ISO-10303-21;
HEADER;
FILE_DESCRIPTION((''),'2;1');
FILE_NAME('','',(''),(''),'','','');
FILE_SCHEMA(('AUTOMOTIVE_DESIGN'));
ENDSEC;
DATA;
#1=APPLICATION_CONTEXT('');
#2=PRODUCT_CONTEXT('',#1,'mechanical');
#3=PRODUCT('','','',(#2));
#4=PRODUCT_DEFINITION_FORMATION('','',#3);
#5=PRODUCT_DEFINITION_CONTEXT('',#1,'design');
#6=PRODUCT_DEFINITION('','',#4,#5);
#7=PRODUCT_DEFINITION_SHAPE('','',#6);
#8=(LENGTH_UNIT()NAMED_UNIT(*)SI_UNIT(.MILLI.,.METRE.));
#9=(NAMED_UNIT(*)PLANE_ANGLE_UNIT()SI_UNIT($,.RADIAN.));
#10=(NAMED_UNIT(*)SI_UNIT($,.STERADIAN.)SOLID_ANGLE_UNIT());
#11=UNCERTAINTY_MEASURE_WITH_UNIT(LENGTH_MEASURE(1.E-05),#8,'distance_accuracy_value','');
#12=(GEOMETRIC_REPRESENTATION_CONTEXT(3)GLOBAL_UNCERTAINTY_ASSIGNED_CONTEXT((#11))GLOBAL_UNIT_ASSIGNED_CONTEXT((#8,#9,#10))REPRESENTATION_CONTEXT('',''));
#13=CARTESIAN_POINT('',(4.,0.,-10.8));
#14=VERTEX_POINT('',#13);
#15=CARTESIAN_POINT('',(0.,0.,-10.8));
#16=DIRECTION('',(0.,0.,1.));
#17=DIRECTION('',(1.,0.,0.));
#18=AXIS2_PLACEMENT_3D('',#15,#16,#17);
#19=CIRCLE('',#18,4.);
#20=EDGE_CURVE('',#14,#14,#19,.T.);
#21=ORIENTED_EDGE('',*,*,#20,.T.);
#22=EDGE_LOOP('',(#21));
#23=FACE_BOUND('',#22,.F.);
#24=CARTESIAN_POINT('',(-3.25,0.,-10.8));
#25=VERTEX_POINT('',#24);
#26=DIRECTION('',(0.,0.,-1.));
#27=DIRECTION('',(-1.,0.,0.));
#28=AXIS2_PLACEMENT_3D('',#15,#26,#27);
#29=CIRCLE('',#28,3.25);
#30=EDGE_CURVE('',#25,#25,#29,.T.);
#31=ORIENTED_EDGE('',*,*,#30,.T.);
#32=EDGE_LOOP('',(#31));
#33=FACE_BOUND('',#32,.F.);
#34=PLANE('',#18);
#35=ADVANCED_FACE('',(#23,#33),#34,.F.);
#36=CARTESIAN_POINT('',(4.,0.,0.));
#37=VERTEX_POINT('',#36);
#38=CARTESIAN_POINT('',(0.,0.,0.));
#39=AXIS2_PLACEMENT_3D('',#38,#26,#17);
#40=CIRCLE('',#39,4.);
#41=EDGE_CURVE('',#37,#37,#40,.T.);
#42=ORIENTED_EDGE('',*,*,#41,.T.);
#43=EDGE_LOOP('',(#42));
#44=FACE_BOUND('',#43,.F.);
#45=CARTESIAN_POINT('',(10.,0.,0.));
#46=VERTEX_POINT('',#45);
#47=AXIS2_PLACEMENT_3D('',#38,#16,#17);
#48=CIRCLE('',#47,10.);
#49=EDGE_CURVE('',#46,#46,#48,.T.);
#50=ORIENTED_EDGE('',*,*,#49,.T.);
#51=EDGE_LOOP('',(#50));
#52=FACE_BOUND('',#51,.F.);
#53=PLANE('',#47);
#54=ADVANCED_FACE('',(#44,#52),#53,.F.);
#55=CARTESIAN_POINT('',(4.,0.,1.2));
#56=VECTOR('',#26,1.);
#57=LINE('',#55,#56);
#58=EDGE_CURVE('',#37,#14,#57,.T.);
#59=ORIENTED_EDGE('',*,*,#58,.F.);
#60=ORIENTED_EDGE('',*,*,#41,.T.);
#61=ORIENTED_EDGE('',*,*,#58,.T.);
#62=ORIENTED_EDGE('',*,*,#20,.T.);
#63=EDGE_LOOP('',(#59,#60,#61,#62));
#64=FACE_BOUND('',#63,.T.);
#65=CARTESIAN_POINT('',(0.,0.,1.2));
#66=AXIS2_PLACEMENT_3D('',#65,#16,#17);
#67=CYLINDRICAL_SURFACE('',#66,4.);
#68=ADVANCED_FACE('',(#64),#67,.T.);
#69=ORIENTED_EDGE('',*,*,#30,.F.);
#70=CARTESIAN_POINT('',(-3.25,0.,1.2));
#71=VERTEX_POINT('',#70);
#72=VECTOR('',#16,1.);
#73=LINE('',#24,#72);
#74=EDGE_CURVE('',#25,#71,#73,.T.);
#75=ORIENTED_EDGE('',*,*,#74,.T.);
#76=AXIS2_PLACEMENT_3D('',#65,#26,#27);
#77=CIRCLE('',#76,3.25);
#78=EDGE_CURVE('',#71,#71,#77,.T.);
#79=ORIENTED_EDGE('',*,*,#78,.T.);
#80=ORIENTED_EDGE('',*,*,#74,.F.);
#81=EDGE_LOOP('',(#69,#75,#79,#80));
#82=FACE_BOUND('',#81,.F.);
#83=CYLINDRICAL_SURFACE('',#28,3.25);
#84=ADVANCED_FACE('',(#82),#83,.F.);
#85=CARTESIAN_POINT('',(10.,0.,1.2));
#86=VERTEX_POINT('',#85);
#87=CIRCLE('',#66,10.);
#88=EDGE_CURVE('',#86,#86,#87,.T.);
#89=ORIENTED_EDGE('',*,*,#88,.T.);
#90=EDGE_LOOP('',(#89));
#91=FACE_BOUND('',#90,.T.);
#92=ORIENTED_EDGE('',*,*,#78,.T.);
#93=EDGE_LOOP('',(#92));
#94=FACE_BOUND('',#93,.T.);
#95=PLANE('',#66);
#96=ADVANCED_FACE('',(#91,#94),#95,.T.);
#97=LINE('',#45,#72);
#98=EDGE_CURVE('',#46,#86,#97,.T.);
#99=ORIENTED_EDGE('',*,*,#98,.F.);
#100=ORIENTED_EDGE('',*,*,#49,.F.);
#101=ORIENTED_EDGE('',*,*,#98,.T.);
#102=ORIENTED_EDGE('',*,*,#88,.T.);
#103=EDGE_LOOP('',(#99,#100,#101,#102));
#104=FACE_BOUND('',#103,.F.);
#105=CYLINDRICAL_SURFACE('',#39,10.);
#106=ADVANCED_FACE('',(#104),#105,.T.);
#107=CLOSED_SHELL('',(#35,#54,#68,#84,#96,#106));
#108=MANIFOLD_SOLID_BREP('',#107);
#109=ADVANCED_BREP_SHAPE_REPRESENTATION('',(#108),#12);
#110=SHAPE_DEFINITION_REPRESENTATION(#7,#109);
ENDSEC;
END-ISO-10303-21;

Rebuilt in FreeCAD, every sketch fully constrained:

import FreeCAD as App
import Part
import Sketcher
from FreeCAD import Vector
Q = App.Units.Quantity

doc = App.newDocument("Part")
body = doc.addObject("PartDesign::Body", "Body")

# Sketch on XY plane
sketch1 = body.newObject("Sketcher::SketchObject", "Sketch")
sketch1.AttachmentSupport = (doc.getObject("XY_Plane"), [""])
sketch1.MapMode = "FlatFace"
sketch1.addGeometry(Part.Circle(Vector(0, 0, 0), Vector(0, 0, 1), 10), False)
sketch1.addConstraint(Sketcher.Constraint("Coincident", 0, 3, -1, 1))
sketch1.addConstraint(Sketcher.Constraint("Diameter", 0, Q("20 mm")))
pad1 = body.newObject("PartDesign::Pad", "Pad")
pad1.Profile = sketch1
pad1.Length = 1.2

# Sketch on XY plane
sketch2 = body.newObject("Sketcher::SketchObject", "Sketch001")
sketch2.AttachmentSupport = (doc.getObject("XY_Plane"), [""])
sketch2.MapMode = "FlatFace"
sketch2.addGeometry(Part.Circle(Vector(0, 0, 0), Vector(0, 0, 1), 4), False)
sketch2.addConstraint(Sketcher.Constraint("Coincident", 0, 3, -1, 1))
sketch2.addConstraint(Sketcher.Constraint("Diameter", 0, Q("8 mm")))
pocket1 = body.newObject("PartDesign::Pocket", "Pocket")
pocket1.Profile = sketch2
pocket1.Type = "UpToFirst"
pocket1.Reversed = True

# Sketch on XY plane
sketch3 = body.newObject("Sketcher::SketchObject", "Sketch002")
sketch3.AttachmentSupport = (doc.getObject("XY_Plane"), [""])
sketch3.MapMode = "FlatFace"
sketch3.AttachmentOffset = App.Placement(Vector(0, 0, 1.2), App.Rotation())
sketch3.addGeometry(Part.Circle(Vector(0, 0, 0), Vector(0, 0, 1), 4), False)
sketch3.addConstraint(Sketcher.Constraint("Coincident", 0, 3, -1, 1))
sketch3.addConstraint(Sketcher.Constraint("Diameter", 0, Q("8 mm")))
pad2 = body.newObject("PartDesign::Pad", "Pad001")
pad2.Profile = sketch3
pad2.Length = 12
pad2.Reversed = True

# Sketch on XY plane
sketch4 = body.newObject("Sketcher::SketchObject", "Sketch003")
sketch4.AttachmentSupport = (doc.getObject("XY_Plane"), [""])
sketch4.MapMode = "FlatFace"
sketch4.AttachmentOffset = App.Placement(Vector(0, 0, -10.8), App.Rotation())
sketch4.addGeometry(Part.Circle(Vector(0, 0, 0), Vector(0, 0, 1), 3.2), False)
sketch4.addConstraint(Sketcher.Constraint("Coincident", 0, 3, -1, 1))
sketch4.addConstraint(Sketcher.Constraint("Diameter", 0, Q("6.5 mm")))
pocket2 = body.newObject("PartDesign::Pocket", "Pocket001")
pocket2.Profile = sketch4
pocket2.Type = "UpToFirst"
pocket2.Reversed = True

doc.recompute()
